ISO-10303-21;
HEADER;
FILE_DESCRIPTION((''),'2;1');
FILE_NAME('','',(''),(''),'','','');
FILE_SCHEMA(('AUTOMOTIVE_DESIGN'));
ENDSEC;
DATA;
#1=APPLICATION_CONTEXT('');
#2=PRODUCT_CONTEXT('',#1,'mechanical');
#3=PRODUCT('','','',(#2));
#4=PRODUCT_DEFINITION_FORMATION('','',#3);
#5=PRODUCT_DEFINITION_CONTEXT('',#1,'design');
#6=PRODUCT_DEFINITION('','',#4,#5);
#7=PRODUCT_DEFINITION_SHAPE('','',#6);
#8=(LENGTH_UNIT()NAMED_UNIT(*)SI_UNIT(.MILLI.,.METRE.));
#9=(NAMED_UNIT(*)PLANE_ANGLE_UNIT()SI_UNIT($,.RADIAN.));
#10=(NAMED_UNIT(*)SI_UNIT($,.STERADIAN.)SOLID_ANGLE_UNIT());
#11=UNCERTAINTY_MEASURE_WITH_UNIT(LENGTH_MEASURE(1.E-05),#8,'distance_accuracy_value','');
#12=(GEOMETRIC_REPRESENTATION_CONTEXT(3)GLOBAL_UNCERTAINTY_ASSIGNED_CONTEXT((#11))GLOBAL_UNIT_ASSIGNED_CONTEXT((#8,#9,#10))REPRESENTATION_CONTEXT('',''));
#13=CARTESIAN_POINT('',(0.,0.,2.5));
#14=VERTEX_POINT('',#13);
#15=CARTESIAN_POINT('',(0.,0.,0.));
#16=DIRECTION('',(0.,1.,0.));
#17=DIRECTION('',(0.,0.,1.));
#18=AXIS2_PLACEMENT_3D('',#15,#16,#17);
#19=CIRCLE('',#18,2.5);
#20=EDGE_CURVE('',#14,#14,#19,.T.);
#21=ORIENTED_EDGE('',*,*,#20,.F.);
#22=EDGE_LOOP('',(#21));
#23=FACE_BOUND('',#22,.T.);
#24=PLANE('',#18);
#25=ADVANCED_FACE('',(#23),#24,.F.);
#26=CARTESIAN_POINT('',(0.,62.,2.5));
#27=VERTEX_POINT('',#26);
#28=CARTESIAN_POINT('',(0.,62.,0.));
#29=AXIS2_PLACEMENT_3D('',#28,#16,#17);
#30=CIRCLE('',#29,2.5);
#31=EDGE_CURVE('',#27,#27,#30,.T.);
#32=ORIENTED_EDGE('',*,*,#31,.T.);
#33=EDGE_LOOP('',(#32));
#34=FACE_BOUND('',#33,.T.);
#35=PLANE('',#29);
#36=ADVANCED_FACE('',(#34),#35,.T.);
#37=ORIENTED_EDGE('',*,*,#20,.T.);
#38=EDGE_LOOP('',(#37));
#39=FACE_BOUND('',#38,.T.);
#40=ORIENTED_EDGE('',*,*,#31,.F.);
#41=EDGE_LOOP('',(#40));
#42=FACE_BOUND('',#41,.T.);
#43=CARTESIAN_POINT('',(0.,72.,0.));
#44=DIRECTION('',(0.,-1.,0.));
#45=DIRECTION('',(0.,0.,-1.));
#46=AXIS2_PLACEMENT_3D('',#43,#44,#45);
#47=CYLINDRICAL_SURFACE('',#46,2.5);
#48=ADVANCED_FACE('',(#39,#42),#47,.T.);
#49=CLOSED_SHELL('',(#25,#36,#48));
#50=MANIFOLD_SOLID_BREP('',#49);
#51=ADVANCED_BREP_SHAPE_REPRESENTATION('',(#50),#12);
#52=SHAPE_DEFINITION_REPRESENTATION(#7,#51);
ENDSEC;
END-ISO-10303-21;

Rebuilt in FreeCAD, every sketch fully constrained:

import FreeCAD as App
import Part
import Sketcher
from FreeCAD import Vector

doc = App.newDocument("Part")
params = doc.addObject("Spreadsheet::Sheet", "Params")
for row, (alias, value) in enumerate([
    ("sketch1_diameter", "5 mm"),
    ("pad1_length", "72 mm"),
    ("sketch2_diameter", "5 mm"),
    ("pocket1_length", "10 mm"),
], start=1):
    params.set(f"A{row}", alias)
    params.set(f"B{row}", "=" + value)
    params.setAlias(f"B{row}", alias)

body = doc.addObject("PartDesign::Body", "Body")

sketch1 = doc.addObject("Sketcher::SketchObject", "Sketch")
body.addObject(sketch1)
sketch1.AttachmentSupport = (doc.XZ_Plane, [""])
sketch1.MapMode = "FlatFace"
sketch1.addGeometry(Part.Circle(Vector(0, 0, 0), Vector(0, 0, 1), 2.5), False)
sketch1.addConstraint([
    Sketcher.Constraint("Coincident", 0, 3, -1, 1),
    Sketcher.Constraint("Diameter", 0, 5.0),
])
sketch1.setExpression("Constraints[1]", "Params.sketch1_diameter")
pad1 = doc.addObject("PartDesign::Pad", "Pad")
body.addObject(pad1)
pad1.Profile = sketch1
pad1.setExpression("Length", "Params.pad1_length")
pad1.Reversed = True

sketch2 = doc.addObject("Sketcher::SketchObject", "Sketch001")
body.addObject(sketch2)
sketch2.AttachmentSupport = (doc.XZ_Plane, [""])
sketch2.MapMode = "FlatFace"
sketch2.AttachmentOffset = App.Placement(Vector(0, 0, -62), App.Rotation())
sketch2.addGeometry(Part.Circle(Vector(0, 0, 0), Vector(0, 0, 1), 2.5), False)
sketch2.addConstraint([
    Sketcher.Constraint("Coincident", 0, 3, -1, 1),
    Sketcher.Constraint("Diameter", 0, 5.0),
])
sketch2.setExpression("Constraints[1]", "Params.sketch2_diameter")
pocket1 = doc.addObject("PartDesign::Pocket", "Pocket")
body.addObject(pocket1)
pocket1.Profile = sketch2
pocket1.setExpression("Length", "Params.pocket1_length")

doc.recompute()
